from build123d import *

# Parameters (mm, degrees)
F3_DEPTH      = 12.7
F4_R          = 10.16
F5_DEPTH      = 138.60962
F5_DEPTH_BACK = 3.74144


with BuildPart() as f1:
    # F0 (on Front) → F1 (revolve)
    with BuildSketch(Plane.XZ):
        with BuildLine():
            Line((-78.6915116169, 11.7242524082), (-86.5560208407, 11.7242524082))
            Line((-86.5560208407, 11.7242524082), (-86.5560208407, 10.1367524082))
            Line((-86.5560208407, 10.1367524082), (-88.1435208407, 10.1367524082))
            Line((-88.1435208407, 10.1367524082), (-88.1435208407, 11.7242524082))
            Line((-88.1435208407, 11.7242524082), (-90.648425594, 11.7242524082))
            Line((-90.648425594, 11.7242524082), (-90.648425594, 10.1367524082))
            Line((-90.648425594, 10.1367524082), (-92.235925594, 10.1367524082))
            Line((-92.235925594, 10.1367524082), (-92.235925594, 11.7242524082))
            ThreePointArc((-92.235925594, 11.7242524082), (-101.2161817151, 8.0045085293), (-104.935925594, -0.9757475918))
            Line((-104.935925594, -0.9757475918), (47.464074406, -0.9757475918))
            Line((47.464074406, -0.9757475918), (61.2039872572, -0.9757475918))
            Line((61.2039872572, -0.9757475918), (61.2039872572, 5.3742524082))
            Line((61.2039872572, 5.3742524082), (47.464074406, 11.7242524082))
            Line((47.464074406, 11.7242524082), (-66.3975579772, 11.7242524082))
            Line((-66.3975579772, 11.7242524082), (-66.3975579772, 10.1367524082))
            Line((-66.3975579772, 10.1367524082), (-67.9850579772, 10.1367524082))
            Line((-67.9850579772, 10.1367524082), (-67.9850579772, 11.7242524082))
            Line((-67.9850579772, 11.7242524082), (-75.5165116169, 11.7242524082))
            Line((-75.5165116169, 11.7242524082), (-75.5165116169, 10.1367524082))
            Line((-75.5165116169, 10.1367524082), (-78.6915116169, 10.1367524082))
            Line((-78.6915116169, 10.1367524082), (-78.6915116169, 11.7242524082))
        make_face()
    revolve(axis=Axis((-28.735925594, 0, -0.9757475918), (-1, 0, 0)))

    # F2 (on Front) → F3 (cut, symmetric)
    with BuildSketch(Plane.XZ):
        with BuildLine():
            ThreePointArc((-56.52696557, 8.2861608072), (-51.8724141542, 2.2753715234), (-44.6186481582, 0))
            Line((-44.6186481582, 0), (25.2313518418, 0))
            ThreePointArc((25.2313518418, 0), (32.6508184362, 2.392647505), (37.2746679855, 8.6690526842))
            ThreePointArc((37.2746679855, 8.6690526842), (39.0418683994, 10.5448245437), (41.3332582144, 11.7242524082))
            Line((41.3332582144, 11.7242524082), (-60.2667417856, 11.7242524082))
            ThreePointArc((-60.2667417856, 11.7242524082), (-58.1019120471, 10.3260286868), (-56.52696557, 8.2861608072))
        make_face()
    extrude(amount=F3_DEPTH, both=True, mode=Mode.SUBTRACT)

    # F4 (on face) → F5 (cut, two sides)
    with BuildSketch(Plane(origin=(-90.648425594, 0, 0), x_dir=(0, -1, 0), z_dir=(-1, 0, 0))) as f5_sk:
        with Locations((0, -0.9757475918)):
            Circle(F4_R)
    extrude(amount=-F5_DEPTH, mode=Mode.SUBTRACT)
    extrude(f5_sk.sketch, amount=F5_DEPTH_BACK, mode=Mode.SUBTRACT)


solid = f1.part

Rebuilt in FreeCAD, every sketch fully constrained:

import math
import FreeCAD as App
import Part
import Sketcher
from FreeCAD import Vector
Q = App.Units.Quantity

doc = App.newDocument("Part")
params = doc.addObject("Spreadsheet::Sheet", "Params")
for row, (alias, value) in enumerate([
    ("sketch1_radius", "0.5 in"),
    ("sketch1_height", "0.25 in"),
    ("sketch1_width", "0.0625 in"),
    ("sketch1_width2", "0.125 in"),
    ("revolution_angle", "360 deg"),
    ("sketch2_radius", "0.5 in"),
    ("sketch2_radius2", "0.3 in"),
    ("sketch2_width", "4 in"),
    ("sketch2_width2", "2.75 in"),
    ("pocket1_length", "1 in"),
    ("sketch3_diameter", "0.8 in"),
    ("pocket2_length", "138.60962 mm"),
    ("pocket2_length2", "3.74144 mm"),
], start=1):
    params.set(f"A{row}", alias)
    params.set(f"B{row}", "=" + value)
    params.setAlias(f"B{row}", alias)

body = doc.addObject("PartDesign::Body", "Body")

# Sketch on XZ plane
sketch1 = body.newObject("Sketcher::SketchObject", "Sketch")
sketch1.AttachmentSupport = (doc.getObject("XZ_Plane"), [""])
sketch1.MapMode = "FlatFace"
sketch1.addGeometry(Part.LineSegment(Vector(-78.7, 11.7, 0), Vector(-86.6, 11.7, 0)), False)
sketch1.addGeometry(Part.LineSegment(Vector(-86.6, 11.7, 0), Vector(-86.6, 10.1, 0)), False)
sketch1.addGeometry(Part.LineSegment(Vector(-86.6, 10.1, 0), Vector(-88.1, 10.1, 0)), False)
sketch1.addGeometry(Part.LineSegment(Vector(-88.1, 10.1, 0), Vector(-88.1, 11.7, 0)), False)
sketch1.addGeometry(Part.LineSegment(Vector(-88.1, 11.7, 0), Vector(-90.6, 11.7, 0)), False)
sketch1.addGeometry(Part.LineSegment(Vector(-90.6, 11.7, 0), Vector(-90.6, 10.1, 0)), False)
sketch1.addGeometry(Part.LineSegment(Vector(-90.6, 10.1, 0), Vector(-92.2, 10.1, 0)), False)
sketch1.addGeometry(Part.LineSegment(Vector(-92.2, 10.1, 0), Vector(-92.2, 11.7, 0)), False)
sketch1.addGeometry(Part.ArcOfCircle(Part.Circle(Vector(-92.2, -1, 0), Vector(0, 0, 1), 12.7), math.radians(90), math.radians(180)), False)
sketch1.addGeometry(Part.LineSegment(Vector(-104.9, -1, 0), Vector(61.2, -1, 0)), False)
sketch1.addGeometry(Part.LineSegment(Vector(61.2, -1, 0), Vector(61.2, 5.4, 0)), False)
sketch1.addGeometry(Part.LineSegment(Vector(61.2, 5.4, 0), Vector(47.5, 11.7, 0)), False)
sketch1.addGeometry(Part.LineSegment(Vector(47.5, 11.7, 0), Vector(-66.4, 11.7, 0)), False)
sketch1.addGeometry(Part.LineSegment(Vector(-66.4, 11.7, 0), Vector(-66.4, 10.1, 0)), False)
sketch1.addGeometry(Part.LineSegment(Vector(-66.4, 10.1, 0), Vector(-68, 10.1, 0)), False)
sketch1.addGeometry(Part.LineSegment(Vector(-68, 10.1, 0), Vector(-68, 11.7, 0)), False)
sketch1.addGeometry(Part.LineSegment(Vector(-68, 11.7, 0), Vector(-75.5, 11.7, 0)), False)
sketch1.addGeometry(Part.LineSegment(Vector(-75.5, 11.7, 0), Vector(-75.5, 10.1, 0)), False)
sketch1.addGeometry(Part.LineSegment(Vector(-75.5, 10.1, 0), Vector(-78.7, 10.1, 0)), False)
sketch1.addGeometry(Part.LineSegment(Vector(-78.7, 10.1, 0), Vector(-78.7, 11.7, 0)), False)
sketch1.addGeometry(Part.LineSegment(Vector(61.2, -1, 0), Vector(-104.9, -1, 0)), True)  # axis
sketch1.addConstraint(Sketcher.Constraint("Coincident", 0, 2, 1, 1))
sketch1.addConstraint(Sketcher.Constraint("Coincident", 1, 2, 2, 1))
sketch1.addConstraint(Sketcher.Constraint("Coincident", 2, 2, 3, 1))
sketch1.addConstraint(Sketcher.Constraint("Coincident", 3, 2, 4, 1))
sketch1.addConstraint(Sketcher.Constraint("Coincident", 4, 2, 5, 1))
sketch1.addConstraint(Sketcher.Constraint("Coincident", 5, 2, 6, 1))
sketch1.addConstraint(Sketcher.Constraint("Coincident", 6, 2, 7, 1))
sketch1.addConstraint(Sketcher.Constraint("Coincident", 7, 2, 8, 1))
sketch1.addConstraint(Sketcher.Constraint("Coincident", 8, 2, 9, 1))
sketch1.addConstraint(Sketcher.Constraint("Coincident", 9, 2, 10, 1))
sketch1.addConstraint(Sketcher.Constraint("Coincident", 10, 2, 11, 1))
sketch1.addConstraint(Sketcher.Constraint("Coincident", 11, 2, 12, 1))
sketch1.addConstraint(Sketcher.Constraint("Coincident", 12, 2, 13, 1))
sketch1.addConstraint(Sketcher.Constraint("Coincident", 13, 2, 14, 1))
sketch1.addConstraint(Sketcher.Constraint("Coincident", 14, 2, 15, 1))
sketch1.addConstraint(Sketcher.Constraint("Coincident", 15, 2, 16, 1))
sketch1.addConstraint(Sketcher.Constraint("Coincident", 16, 2, 17, 1))
sketch1.addConstraint(Sketcher.Constraint("Coincident", 17, 2, 18, 1))
sketch1.addConstraint(Sketcher.Constraint("Coincident", 18, 2, 19, 1))
sketch1.addConstraint(Sketcher.Constraint("Coincident", 19, 2, 0, 1))
sketch1.addConstraint(Sketcher.Constraint("Horizontal", 0))
sketch1.addConstraint(Sketcher.Constraint("Vertical", 1))
sketch1.addConstraint(Sketcher.Constraint("Horizontal", 2))
sketch1.addConstraint(Sketcher.Constraint("Vertical", 3))
sketch1.addConstraint(Sketcher.Constraint("Horizontal", 4))
sketch1.addConstraint(Sketcher.Constraint("Vertical", 5))
sketch1.addConstraint(Sketcher.Constraint("Horizontal", 6))
sketch1.addConstraint(Sketcher.Constraint("Vertical", 7))
sketch1.addConstraint(Sketcher.Constraint("Horizontal", 9))
sketch1.addConstraint(Sketcher.Constraint("Vertical", 10))
sketch1.addConstraint(Sketcher.Constraint("Horizontal", 12))
sketch1.addConstraint(Sketcher.Constraint("Vertical", 13))
sketch1.addConstraint(Sketcher.Constraint("Horizontal", 14))
sketch1.addConstraint(Sketcher.Constraint("Vertical", 15))
sketch1.addConstraint(Sketcher.Constraint("Horizontal", 16))
sketch1.addConstraint(Sketcher.Constraint("Vertical", 17))
sketch1.addConstraint(Sketcher.Constraint("Horizontal", 18))
sketch1.addConstraint(Sketcher.Constraint("Vertical", 19))
sketch1.addConstraint(Sketcher.Constraint("Horizontal", 20))
sketch1.addConstraint(Sketcher.Constraint("Coincident", 20, 1, 9, 2))
sketch1.addConstraint(Sketcher.Constraint("Horizontal", 0, 2, 3, 2))
sketch1.addConstraint(Sketcher.Constraint("Horizontal", 2, 2, 5, 2))
sketch1.addConstraint(Sketcher.Constraint("Horizontal", 4, 2, 7, 2))
sketch1.addConstraint(Sketcher.Constraint("Horizontal", 7, 2, 11, 2))
sketch1.addConstraint(Sketcher.Constraint("Horizontal", 6, 2, 13, 2))
sketch1.addConstraint(Sketcher.Constraint("Horizontal", 12, 2, 15, 2))
sketch1.addConstraint(Sketcher.Constraint("Horizontal", 14, 2, 17, 2))
sketch1.addConstraint(Sketcher.Constraint("Vertical", 8, 3, 6, 2))
sketch1.addConstraint(Sketcher.Constraint("Equal", 2, 6))
sketch1.addConstraint(Sketcher.Constraint("Equal", 6, 14))
sketch1.addConstraint(Sketcher.Constraint("Equal", 9, 20))
sketch1.addConstraint(Sketcher.Constraint("Equal", 14, 1))
sketch1.addConstraint(Sketcher.Constraint("Radius", 8, Q("0.5 in")))
sketch1.addConstraint(Sketcher.Constraint("DistanceY", 10, 1, 10, 2, Q("0.25 in")))
sketch1.addConstraint(Sketcher.Constraint("DistanceY", 8, 2, 7, 2, Q("0.5 in")))
sketch1.addConstraint(Sketcher.Constraint("DistanceX", 2, 2, 2, 1, Q("0.0625 in")))
sketch1.addConstraint(Sketcher.Constraint("DistanceX", 18, 2, 18, 1, Q("0.125 in")))
sketch1.addConstraint(Sketcher.Constraint("DistanceX", 0, 2, 0, 1, 7.864509))
sketch1.addConstraint(Sketcher.Constraint("DistanceX", 4, 2, 4, 1, 2.504905))
sketch1.addConstraint(Sketcher.Constraint("DistanceX", 9, 1, 9, 2, 166.139913))
sketch1.addConstraint(Sketcher.Constraint("DistanceX", 12, 2, 12, 1, 113.861632))
sketch1.addConstraint(Sketcher.Constraint("DistanceX", 16, 2, 16, 1, 7.531454))
sketch1.addConstraint(Sketcher.Constraint("DistanceX", 0, 2, -1, 1, 86.556021))
sketch1.addConstraint(Sketcher.Constraint("DistanceY", 8, 3, -1, 1, 0.975748))
sketch1.setExpression("Constraints[52]", "Params.sketch1_radius")
sketch1.setExpression("Constraints[53]", "Params.sketch1_height")
sketch1.setExpression("Constraints[55]", "Params.sketch1_width")
sketch1.setExpression("Constraints[56]", "Params.sketch1_width2")
revolution = body.newObject("PartDesign::Revolution", "Revolution")
revolution.Profile = sketch1
revolution.ReferenceAxis = (sketch1, ["Axis0"])
revolution.setExpression("Angle", "Params.revolution_angle")

# Sketch on XZ plane
sketch2 = body.newObject("Sketcher::SketchObject", "Sketch001")
sketch2.AttachmentSupport = (doc.getObject("XZ_Plane"), [""])
sketch2.MapMode = "FlatFace"
sketch2.addGeometry(Part.ArcOfCircle(Part.Circle(Vector(-45, 13, 0), Vector(0, 0, 1), 13), math.radians(-160), math.radians(-90)), False)
sketch2.addGeometry(Part.LineSegment(Vector(-45, 0, 0), Vector(25, 0, 0)), False)
sketch2.addGeometry(Part.ArcOfCircle(Part.Circle(Vector(25, 13, 0), Vector(0, 0, 1), 13), math.radians(-90), math.radians(-19)), False)
sketch2.addGeometry(Part.ArcOfCircle(Part.Circle(Vector(44, 4, 0), Vector(0, 0, 1), 8), math.radians(108), math.radians(146)), False)
sketch2.addGeometry(Part.LineSegment(Vector(41, 12, 0), Vector(-60, 12, 0)), False)
sketch2.addGeometry(Part.ArcOfCircle(Part.Circle(Vector(-63, 5, 0), Vector(0, 0, 1), 8), math.radians(28), math.radians(67)), False)
sketch2.addConstraint(Sketcher.Constraint("Tangent", 0, 2, 1, 1))
sketch2.addConstraint(Sketcher.Constraint("Tangent", 1, 2, 2, 1))
sketch2.addConstraint(Sketcher.Constraint("Coincident", 2, 2, 3, 2))
sketch2.addConstraint(Sketcher.Constraint("Coincident", 3, 1, 4, 1))
sketch2.addConstraint(Sketcher.Constraint("Coincident", 4, 2, 5, 2))
sketch2.addConstraint(Sketcher.Constraint("Coincident", 5, 1, 0, 1))
sketch2.addConstraint(Sketcher.Constraint("Horizontal", 1))
sketch2.addConstraint(Sketcher.Constraint("Horizontal", 4))
sketch2.addConstraint(Sketcher.Constraint("Equal", 0, 2))
sketch2.addConstraint(Sketcher.Constraint("Equal", 3, 5))
sketch2.addConstraint(Sketcher.Constraint("PointOnObject", 0, 2, -1))
sketch2.addConstraint(Sketcher.Constraint("Radius", 0, Q("0.5 in")))
sketch2.addConstraint(Sketcher.Constraint("Radius", 3, Q("0.3 in")))
sketch2.addConstraint(Sketcher.Constraint("DistanceX", 4, 2, 4, 1, Q("4 in")))
sketch2.addConstraint(Sketcher.Constraint("DistanceX", 1, 1, 1, 2, Q("2.75 in")))
sketch2.addConstraint(Sketcher.Constraint("DistanceX", 2, 2, 3, 3, Q("0.25 in")))
sketch2.addConstraint(Sketcher.Constraint("DistanceX", 5, 3, 0, 3, 18.640401))
sketch2.addConstraint(Sketcher.Constraint("DistanceY", 2, 2, 3, 1, 3.0552))
sketch2.addConstraint(Sketcher.Constraint("DistanceX", 0, 3, -1, 1, 44.618648))
sketch2.addConstraint(Sketcher.Constraint("DistanceY", -1, 1, 3, 3, 4.456939))
sketch2.setExpression("Constraints[11]", "Params.sketch2_radius")
sketch2.setExpression("Constraints[12]", "Params.sketch2_radius2")
sketch2.setExpression("Constraints[13]", "Params.sketch2_width")
sketch2.setExpression("Constraints[14]", "Params.sketch2_width2")
pocket1 = body.newObject("PartDesign::Pocket", "Pocket")
pocket1.Profile = sketch2
pocket1.setExpression("Length", "Params.pocket1_length")
pocket1.Midplane = True

# Sketch on YZ plane
sketch3 = body.newObject("Sketcher::SketchObject", "Sketch002")
sketch3.AttachmentSupport = (doc.getObject("YZ_Plane"), [""])
sketch3.MapMode = "FlatFace"
sketch3.AttachmentOffset = App.Placement(Vector(0, 0, -90.648426), App.Rotation())
sketch3.addGeometry(Part.Circle(Vector(0, -1, 0), Vector(0, 0, 1), 10), False)
sketch3.addConstraint(Sketcher.Constraint("PointOnObject", 0, 3, -2))
sketch3.addConstraint(Sketcher.Constraint("Diameter", 0, Q("0.8 in")))
sketch3.addConstraint(Sketcher.Constraint("DistanceY", 0, 3, -1, 1, 0.975748))
sketch3.setExpression("Constraints[1]", "Params.sketch3_diameter")
pocket2 = body.newObject("PartDesign::Pocket", "Pocket001")
pocket2.Profile = sketch3
pocket2.Type = "TwoLengths"
pocket2.setExpression("Length", "Params.pocket2_length")
pocket2.setExpression("Length2", "Params.pocket2_length2")
pocket2.Reversed = True

doc.recompute()
